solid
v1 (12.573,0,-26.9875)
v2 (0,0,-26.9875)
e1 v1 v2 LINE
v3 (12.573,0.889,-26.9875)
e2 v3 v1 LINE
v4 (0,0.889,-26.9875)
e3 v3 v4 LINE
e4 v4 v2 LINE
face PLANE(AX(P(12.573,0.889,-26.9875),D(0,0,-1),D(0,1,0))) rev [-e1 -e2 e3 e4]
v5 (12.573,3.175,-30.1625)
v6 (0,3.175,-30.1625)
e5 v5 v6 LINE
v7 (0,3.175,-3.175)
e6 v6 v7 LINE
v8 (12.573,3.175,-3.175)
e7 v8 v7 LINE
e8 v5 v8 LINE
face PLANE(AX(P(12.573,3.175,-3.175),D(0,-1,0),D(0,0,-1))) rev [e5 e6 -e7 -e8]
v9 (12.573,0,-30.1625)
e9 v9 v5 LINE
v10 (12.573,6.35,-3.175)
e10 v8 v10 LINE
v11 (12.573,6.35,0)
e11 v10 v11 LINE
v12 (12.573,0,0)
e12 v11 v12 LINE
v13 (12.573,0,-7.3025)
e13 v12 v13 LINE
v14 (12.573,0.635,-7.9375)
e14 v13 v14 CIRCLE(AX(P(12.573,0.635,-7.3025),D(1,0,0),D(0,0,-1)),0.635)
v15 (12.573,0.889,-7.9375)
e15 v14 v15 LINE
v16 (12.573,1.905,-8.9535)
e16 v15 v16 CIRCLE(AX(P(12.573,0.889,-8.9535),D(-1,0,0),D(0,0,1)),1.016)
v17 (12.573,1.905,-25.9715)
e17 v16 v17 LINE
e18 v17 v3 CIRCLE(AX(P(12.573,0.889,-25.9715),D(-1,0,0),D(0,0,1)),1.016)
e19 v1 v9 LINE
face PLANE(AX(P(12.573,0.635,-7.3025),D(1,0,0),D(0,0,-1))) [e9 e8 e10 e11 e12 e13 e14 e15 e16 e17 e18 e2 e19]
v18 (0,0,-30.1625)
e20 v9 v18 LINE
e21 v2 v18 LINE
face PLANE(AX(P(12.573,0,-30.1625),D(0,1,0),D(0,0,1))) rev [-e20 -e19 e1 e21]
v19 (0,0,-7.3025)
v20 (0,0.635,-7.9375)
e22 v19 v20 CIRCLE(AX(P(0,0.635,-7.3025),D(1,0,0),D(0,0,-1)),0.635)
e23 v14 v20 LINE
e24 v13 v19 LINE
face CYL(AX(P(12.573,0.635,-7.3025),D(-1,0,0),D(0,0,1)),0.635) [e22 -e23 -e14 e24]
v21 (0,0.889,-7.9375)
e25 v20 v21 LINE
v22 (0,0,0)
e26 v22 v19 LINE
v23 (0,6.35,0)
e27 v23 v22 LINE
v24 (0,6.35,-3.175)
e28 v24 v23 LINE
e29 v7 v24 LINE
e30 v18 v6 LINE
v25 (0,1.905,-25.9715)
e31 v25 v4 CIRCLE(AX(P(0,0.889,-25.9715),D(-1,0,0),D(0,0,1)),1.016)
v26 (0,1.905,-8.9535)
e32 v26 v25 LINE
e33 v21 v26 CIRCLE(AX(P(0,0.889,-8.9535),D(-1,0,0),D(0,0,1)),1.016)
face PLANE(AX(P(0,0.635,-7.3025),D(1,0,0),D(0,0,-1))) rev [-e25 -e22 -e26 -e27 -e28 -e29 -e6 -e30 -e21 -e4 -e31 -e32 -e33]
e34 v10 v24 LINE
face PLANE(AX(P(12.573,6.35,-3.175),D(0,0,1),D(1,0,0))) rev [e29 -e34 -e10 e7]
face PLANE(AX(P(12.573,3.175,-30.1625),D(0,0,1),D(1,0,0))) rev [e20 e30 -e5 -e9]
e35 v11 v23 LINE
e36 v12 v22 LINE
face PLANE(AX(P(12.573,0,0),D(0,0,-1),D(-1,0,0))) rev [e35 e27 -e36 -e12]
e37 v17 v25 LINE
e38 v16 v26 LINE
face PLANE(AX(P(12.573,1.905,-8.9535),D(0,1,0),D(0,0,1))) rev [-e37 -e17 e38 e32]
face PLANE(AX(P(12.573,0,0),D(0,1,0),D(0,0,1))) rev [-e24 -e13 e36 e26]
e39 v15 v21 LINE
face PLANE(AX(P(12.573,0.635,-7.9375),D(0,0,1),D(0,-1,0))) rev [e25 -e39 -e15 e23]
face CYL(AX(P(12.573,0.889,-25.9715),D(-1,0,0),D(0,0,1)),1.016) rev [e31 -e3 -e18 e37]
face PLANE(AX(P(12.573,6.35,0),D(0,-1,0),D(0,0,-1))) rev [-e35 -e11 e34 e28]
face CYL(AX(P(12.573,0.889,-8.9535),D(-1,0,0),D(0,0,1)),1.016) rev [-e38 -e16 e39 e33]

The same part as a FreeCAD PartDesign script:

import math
import FreeCAD as App
import Part
import Sketcher
Q = App.Units.Quantity

doc = App.newDocument("Part")
body = doc.addObject("PartDesign::Body", "Body")

sketch1 = doc.addObject("Sketcher::SketchObject", "Sketch")
body.addObject(sketch1)
sketch1.AttachmentSupport = (doc.YZ_Plane, [""])
sketch1.MapMode = "FlatFace"
sketch1.addGeometry(Part.LineSegment(App.Vector(6.35, 0, 0), App.Vector(0, 0, 0)), False)
sketch1.addGeometry(Part.LineSegment(App.Vector(0, 0, 0), App.Vector(0, -7.3, 0)), False)
sketch1.addGeometry(Part.ArcOfCircle(Part.Circle(App.Vector(0.64, -7.3, 0), App.Vector(0, 0, 1), 0.64), math.radians(180), math.radians(270)), False)
sketch1.addGeometry(Part.LineSegment(App.Vector(0.64, -7.94, 0), App.Vector(0.89, -7.94, 0)), False)
sketch1.addGeometry(Part.ArcOfCircle(Part.Circle(App.Vector(0.89, -8.95, 0), App.Vector(0, 0, 1), 1.02), math.radians(0), math.radians(90)), False)
sketch1.addGeometry(Part.LineSegment(App.Vector(1.91, -8.95, 0), App.Vector(1.91, -25.97, 0)), False)
sketch1.addGeometry(Part.ArcOfCircle(Part.Circle(App.Vector(0.89, -25.97, 0), App.Vector(0, 0, 1), 1.02), math.radians(-90), math.radians(0)), False)
sketch1.addGeometry(Part.LineSegment(App.Vector(0.89, -26.99, 0), App.Vector(0, -26.99, 0)), False)
sketch1.addGeometry(Part.LineSegment(App.Vector(0, -26.99, 0), App.Vector(0, -30.16, 0)), False)
sketch1.addGeometry(Part.LineSegment(App.Vector(0, -30.16, 0), App.Vector(3.17, -30.16, 0)), False)
sketch1.addGeometry(Part.LineSegment(App.Vector(3.17, -30.16, 0), App.Vector(3.17, -3.17, 0)), False)
sketch1.addGeometry(Part.LineSegment(App.Vector(3.17, -3.17, 0), App.Vector(6.35, -3.17, 0)), False)
sketch1.addGeometry(Part.LineSegment(App.Vector(6.35, -3.17, 0), App.Vector(6.35, 0, 0)), False)
sketch1.addConstraint(Sketcher.Constraint("Coincident", 0, 2, 1, 1))
sketch1.addConstraint(Sketcher.Constraint("Tangent", 1, 2, 2, 1))
sketch1.addConstraint(Sketcher.Constraint("Tangent", 2, 2, 3, 1))
sketch1.addConstraint(Sketcher.Constraint("Tangent", 3, 2, 4, 2))
sketch1.addConstraint(Sketcher.Constraint("Tangent", 4, 1, 5, 1))
sketch1.addConstraint(Sketcher.Constraint("Tangent", 5, 2, 6, 2))
sketch1.addConstraint(Sketcher.Constraint("Tangent", 6, 1, 7, 1))
sketch1.addConstraint(Sketcher.Constraint("Coincident", 7, 2, 8, 1))
sketch1.addConstraint(Sketcher.Constraint("Coincident", 8, 2, 9, 1))
sketch1.addConstraint(Sketcher.Constraint("Coincident", 9, 2, 10, 1))
sketch1.addConstraint(Sketcher.Constraint("Coincident", 10, 2, 11, 1))
sketch1.addConstraint(Sketcher.Constraint("Coincident", 11, 2, 12, 1))
sketch1.addConstraint(Sketcher.Constraint("Coincident", 12, 2, 0, 1))
sketch1.addConstraint(Sketcher.Constraint("Horizontal", 0))
sketch1.addConstraint(Sketcher.Constraint("Vertical", 1))
sketch1.addConstraint(Sketcher.Constraint("Horizontal", 3))
sketch1.addConstraint(Sketcher.Constraint("Vertical", 5))
sketch1.addConstraint(Sketcher.Constraint("Horizontal", 7))
sketch1.addConstraint(Sketcher.Constraint("Vertical", 8))
sketch1.addConstraint(Sketcher.Constraint("Horizontal", 9))
sketch1.addConstraint(Sketcher.Constraint("Vertical", 10))
sketch1.addConstraint(Sketcher.Constraint("Horizontal", 11))
sketch1.addConstraint(Sketcher.Constraint("Vertical", 12))
sketch1.addConstraint(Sketcher.Constraint("Coincident", 0, 2, -1, 1))
sketch1.addConstraint(Sketcher.Constraint("Equal", 4, 6))
sketch1.addConstraint(Sketcher.Constraint("PointOnObject", 7, 2, -2))
sketch1.addConstraint(Sketcher.Constraint("Equal", 9, 11))
sketch1.addConstraint(Sketcher.Constraint("Equal", 11, 8))
sketch1.addConstraint(Sketcher.Constraint("Equal", 8, 12))
sketch1.addConstraint(Sketcher.Constraint("Radius", 4, Q("0.04 in")))
sketch1.addConstraint(Sketcher.Constraint("Radius", 2, Q("0.025 in")))
sketch1.addConstraint(Sketcher.Constraint("DistanceX", 0, 2, 0, 1, Q("0.25 in")))
sketch1.addConstraint(Sketcher.Constraint("DistanceX", 3, 1, 3, 2, Q("0.01 in")))
sketch1.addConstraint(Sketcher.Constraint("DistanceY", 5, 2, 5, 1, Q("0.67 in")))
sketch1.addConstraint(Sketcher.Constraint("DistanceY", 10, 1, 10, 2, Q("1.0625 in")))
pad1 = doc.addObject("PartDesign::Pad", "Pad")
body.addObject(pad1)
pad1.Profile = sketch1
pad1.Length = Q("0.495 in")

doc.recompute()
